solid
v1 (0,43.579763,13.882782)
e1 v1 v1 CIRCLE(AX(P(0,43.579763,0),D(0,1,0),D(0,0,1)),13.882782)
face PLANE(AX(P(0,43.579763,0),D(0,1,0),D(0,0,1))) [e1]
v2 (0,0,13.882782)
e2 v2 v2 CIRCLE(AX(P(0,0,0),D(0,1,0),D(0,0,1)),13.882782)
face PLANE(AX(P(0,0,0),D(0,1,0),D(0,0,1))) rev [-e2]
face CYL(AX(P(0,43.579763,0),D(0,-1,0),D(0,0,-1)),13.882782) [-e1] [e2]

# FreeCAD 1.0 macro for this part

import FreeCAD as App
import Part
import Sketcher
from FreeCAD import Vector

doc = App.newDocument("Part")
params = doc.addObject("Spreadsheet::Sheet", "Params")
for row, (alias, value) in enumerate([
    ("pad1_length", "43.579763 mm"),
], start=1):
    params.set(f"A{row}", alias)
    params.set(f"B{row}", "=" + value)
    params.setAlias(f"B{row}", alias)

body = doc.addObject("PartDesign::Body", "Body")

# Sketch on XZ plane
sketch1 = body.newObject("Sketcher::SketchObject", "Sketch")
sketch1.AttachmentSupport = (doc.getObject("XZ_Plane"), [""])
sketch1.MapMode = "FlatFace"
sketch1.addGeometry(Part.Circle(Vector(0, 0, 0), Vector(0, 0, 1), 14), False)
sketch1.addConstraint(Sketcher.Constraint("Coincident", 0, 3, -1, 1))
sketch1.addConstraint(Sketcher.Constraint("Diameter", 0, 27.765564))
pad1 = body.newObject("PartDesign::Pad", "Pad")
pad1.Profile = sketch1
pad1.setExpression("Length", "Params.pad1_length")
pad1.Reversed = True

doc.recompute()
